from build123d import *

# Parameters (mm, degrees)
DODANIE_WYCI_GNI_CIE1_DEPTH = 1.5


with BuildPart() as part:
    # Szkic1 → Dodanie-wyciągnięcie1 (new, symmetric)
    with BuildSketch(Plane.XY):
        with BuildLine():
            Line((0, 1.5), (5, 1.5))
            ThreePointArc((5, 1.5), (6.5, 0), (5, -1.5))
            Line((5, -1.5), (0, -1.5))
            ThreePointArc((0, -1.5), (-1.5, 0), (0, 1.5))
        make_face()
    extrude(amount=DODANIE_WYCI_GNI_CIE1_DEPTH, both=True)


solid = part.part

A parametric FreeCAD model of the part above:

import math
import FreeCAD as App
import Part
import Sketcher
from FreeCAD import Vector

doc = App.newDocument("Part")
body = doc.addObject("PartDesign::Body", "Body")

sketch1 = doc.addObject("Sketcher::SketchObject", "Sketch")
body.addObject(sketch1)
sketch1.AttachmentSupport = (doc.XY_Plane, [""])
sketch1.MapMode = "FlatFace"
sketch1.addGeometry([
    Part.LineSegment(Vector(5, 1.5, 0), Vector(0, 1.5, 0)),
    Part.ArcOfCircle(Part.Circle(Vector(0, 0, 0), Vector(0, 0, 1), 1.5), math.radians(90), math.radians(270)),
    Part.LineSegment(Vector(0, -1.5, 0), Vector(5, -1.5, 0)),
    Part.ArcOfCircle(Part.Circle(Vector(5, 0, 0), Vector(0, 0, 1), 1.5), math.radians(-90), math.radians(90)),
], False)
sketch1.addConstraint([
    Sketcher.Constraint("Tangent", 0, 2, 1, 1),
    Sketcher.Constraint("Tangent", 1, 2, 2, 1),
    Sketcher.Constraint("Tangent", 2, 2, 3, 1),
    Sketcher.Constraint("Tangent", 3, 2, 0, 1),
    Sketcher.Constraint("Horizontal", 0),
    Sketcher.Constraint("Horizontal", 2),
    Sketcher.Constraint("Coincident", 1, 3, -1, 1),
    Sketcher.Constraint("Radius", 1, 1.5),
    Sketcher.Constraint("DistanceX", 0, 2, 0, 1, 5.0),
])
pad1 = doc.addObject("PartDesign::Pad", "Pad")
body.addObject(pad1)
pad1.Profile = sketch1
pad1.Length = 3
pad1.Midplane = True

doc.recompute()
